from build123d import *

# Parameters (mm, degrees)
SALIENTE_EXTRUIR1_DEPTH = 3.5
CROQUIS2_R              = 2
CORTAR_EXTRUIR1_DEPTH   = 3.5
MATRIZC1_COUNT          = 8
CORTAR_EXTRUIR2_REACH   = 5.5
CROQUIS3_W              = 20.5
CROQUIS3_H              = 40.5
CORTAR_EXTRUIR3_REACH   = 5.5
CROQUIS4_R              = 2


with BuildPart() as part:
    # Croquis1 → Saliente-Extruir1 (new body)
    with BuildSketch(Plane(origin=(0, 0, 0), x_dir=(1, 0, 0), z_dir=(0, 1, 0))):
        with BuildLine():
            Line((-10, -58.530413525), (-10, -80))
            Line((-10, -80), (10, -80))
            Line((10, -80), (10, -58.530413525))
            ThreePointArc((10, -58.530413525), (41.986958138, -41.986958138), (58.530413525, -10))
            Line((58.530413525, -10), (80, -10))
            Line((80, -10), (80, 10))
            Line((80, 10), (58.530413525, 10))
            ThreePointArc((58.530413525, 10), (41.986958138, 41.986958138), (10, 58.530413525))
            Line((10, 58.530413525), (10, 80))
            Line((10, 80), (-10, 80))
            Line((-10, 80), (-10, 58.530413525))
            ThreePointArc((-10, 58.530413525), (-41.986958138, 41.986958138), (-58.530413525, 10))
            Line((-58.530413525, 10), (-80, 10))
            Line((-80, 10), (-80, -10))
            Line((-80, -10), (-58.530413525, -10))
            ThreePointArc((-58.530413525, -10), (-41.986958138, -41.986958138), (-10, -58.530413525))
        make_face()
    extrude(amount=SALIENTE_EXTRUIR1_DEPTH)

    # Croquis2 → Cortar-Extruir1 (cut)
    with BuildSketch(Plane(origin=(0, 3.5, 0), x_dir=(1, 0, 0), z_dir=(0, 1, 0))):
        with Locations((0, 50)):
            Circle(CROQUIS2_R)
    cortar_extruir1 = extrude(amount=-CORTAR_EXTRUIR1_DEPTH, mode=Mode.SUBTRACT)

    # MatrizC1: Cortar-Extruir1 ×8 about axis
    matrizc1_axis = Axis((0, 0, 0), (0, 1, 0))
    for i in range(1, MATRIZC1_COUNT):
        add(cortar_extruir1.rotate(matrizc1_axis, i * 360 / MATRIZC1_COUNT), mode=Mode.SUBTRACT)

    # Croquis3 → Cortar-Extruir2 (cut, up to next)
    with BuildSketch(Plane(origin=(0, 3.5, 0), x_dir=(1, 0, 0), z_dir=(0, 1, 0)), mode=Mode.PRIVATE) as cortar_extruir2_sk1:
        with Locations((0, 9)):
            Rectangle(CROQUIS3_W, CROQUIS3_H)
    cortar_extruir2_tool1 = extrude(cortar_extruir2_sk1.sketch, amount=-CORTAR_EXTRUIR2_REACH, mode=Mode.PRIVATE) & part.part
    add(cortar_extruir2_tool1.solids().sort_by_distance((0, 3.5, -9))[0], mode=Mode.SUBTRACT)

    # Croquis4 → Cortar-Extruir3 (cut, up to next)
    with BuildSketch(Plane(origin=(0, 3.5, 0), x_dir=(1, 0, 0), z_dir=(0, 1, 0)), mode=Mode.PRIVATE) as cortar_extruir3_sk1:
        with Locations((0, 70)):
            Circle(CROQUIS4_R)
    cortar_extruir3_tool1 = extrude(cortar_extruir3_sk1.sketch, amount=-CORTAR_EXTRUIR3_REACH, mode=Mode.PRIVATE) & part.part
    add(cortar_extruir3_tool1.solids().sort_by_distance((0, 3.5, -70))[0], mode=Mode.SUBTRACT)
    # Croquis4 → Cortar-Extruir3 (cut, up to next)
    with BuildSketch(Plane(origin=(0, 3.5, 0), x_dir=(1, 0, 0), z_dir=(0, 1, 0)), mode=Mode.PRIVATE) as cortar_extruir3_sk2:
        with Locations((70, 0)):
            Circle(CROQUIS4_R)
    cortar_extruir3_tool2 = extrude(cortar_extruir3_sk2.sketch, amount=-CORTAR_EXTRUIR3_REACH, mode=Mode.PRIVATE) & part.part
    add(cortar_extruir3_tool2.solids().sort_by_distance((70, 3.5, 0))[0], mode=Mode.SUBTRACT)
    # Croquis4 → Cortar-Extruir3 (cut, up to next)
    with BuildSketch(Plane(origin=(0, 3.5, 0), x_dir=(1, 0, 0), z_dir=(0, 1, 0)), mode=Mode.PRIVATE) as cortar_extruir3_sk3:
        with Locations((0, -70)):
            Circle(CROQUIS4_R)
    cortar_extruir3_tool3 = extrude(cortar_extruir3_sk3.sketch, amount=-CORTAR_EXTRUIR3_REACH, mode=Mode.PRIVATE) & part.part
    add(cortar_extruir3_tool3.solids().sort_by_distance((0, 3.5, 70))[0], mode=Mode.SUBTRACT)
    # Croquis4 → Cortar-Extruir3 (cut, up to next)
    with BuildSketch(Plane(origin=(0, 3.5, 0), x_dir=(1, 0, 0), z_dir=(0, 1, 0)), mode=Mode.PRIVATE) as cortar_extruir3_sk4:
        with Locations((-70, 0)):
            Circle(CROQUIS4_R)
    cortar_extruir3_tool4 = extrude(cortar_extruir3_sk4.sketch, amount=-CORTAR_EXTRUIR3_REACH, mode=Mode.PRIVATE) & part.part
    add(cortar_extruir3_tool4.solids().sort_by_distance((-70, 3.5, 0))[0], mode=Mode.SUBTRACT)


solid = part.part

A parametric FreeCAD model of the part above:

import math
import FreeCAD as App
import Part
import Sketcher
from FreeCAD import Vector
Q = App.Units.Quantity

doc = App.newDocument("Part")
body = doc.addObject("PartDesign::Body", "Body")

sketch1 = body.newObject("Sketcher::SketchObject", "Sketch")
sketch1.AttachmentSupport = (doc.getObject("XZ_Plane"), [""])
sketch1.MapMode = "FlatFace"
sketch1.addGeometry(Part.LineSegment(Vector(-10, 58.530414, 0), Vector(-10, 80, 0)), False)
sketch1.addGeometry(Part.LineSegment(Vector(-10, 80, 0), Vector(10, 80, 0)), False)
sketch1.addGeometry(Part.LineSegment(Vector(10, 80, 0), Vector(10, 58.530414, 0)), False)
sketch1.addGeometry(Part.ArcOfCircle(Part.Circle(Vector(0, 0, 0), Vector(0, 0, 1), 59.378526), math.radians(9.695447), math.radians(80.304553)), False)
sketch1.addGeometry(Part.LineSegment(Vector(58.530414, 10, 0), Vector(80, 10, 0)), False)
sketch1.addGeometry(Part.LineSegment(Vector(80, 10, 0), Vector(80, -10, 0)), False)
sketch1.addGeometry(Part.LineSegment(Vector(80, -10, 0), Vector(58.530414, -10, 0)), False)
sketch1.addGeometry(Part.ArcOfCircle(Part.Circle(Vector(0, 0, 0), Vector(0, 0, 1), 59.378526), math.radians(-80.304553), math.radians(-9.695447)), False)
sketch1.addGeometry(Part.LineSegment(Vector(10, -58.530414, 0), Vector(10, -80, 0)), False)
sketch1.addGeometry(Part.LineSegment(Vector(10, -80, 0), Vector(-10, -80, 0)), False)
sketch1.addGeometry(Part.LineSegment(Vector(-10, -80, 0), Vector(-10, -58.530414, 0)), False)
sketch1.addGeometry(Part.ArcOfCircle(Part.Circle(Vector(0, 0, 0), Vector(0, 0, 1), 59.378526), math.radians(-170.304553), math.radians(-99.695447)), False)
sketch1.addGeometry(Part.LineSegment(Vector(-58.530414, -10, 0), Vector(-80, -10, 0)), False)
sketch1.addGeometry(Part.LineSegment(Vector(-80, -10, 0), Vector(-80, 10, 0)), False)
sketch1.addGeometry(Part.LineSegment(Vector(-80, 10, 0), Vector(-58.530414, 10, 0)), False)
sketch1.addGeometry(Part.ArcOfCircle(Part.Circle(Vector(0, 0, 0), Vector(0, 0, 1), 59.378526), math.radians(99.695447), math.radians(170.304553)), False)
sketch1.addConstraint(Sketcher.Constraint("Coincident", 0, 2, 1, 1))
sketch1.addConstraint(Sketcher.Constraint("Coincident", 1, 2, 2, 1))
sketch1.addConstraint(Sketcher.Constraint("Coincident", 2, 2, 3, 2))
sketch1.addConstraint(Sketcher.Constraint("Coincident", 3, 1, 4, 1))
sketch1.addConstraint(Sketcher.Constraint("Coincident", 4, 2, 5, 1))
sketch1.addConstraint(Sketcher.Constraint("Coincident", 5, 2, 6, 1))
sketch1.addConstraint(Sketcher.Constraint("Coincident", 6, 2, 7, 2))
sketch1.addConstraint(Sketcher.Constraint("Coincident", 7, 1, 8, 1))
sketch1.addConstraint(Sketcher.Constraint("Coincident", 8, 2, 9, 1))
sketch1.addConstraint(Sketcher.Constraint("Coincident", 9, 2, 10, 1))
sketch1.addConstraint(Sketcher.Constraint("Coincident", 10, 2, 11, 2))
sketch1.addConstraint(Sketcher.Constraint("Coincident", 11, 1, 12, 1))
sketch1.addConstraint(Sketcher.Constraint("Coincident", 12, 2, 13, 1))
sketch1.addConstraint(Sketcher.Constraint("Coincident", 13, 2, 14, 1))
sketch1.addConstraint(Sketcher.Constraint("Coincident", 14, 2, 15, 2))
sketch1.addConstraint(Sketcher.Constraint("Coincident", 15, 1, 0, 1))
sketch1.addConstraint(Sketcher.Constraint("Vertical", 0))
sketch1.addConstraint(Sketcher.Constraint("Horizontal", 1))
sketch1.addConstraint(Sketcher.Constraint("Vertical", 2))
sketch1.addConstraint(Sketcher.Constraint("Horizontal", 4))
sketch1.addConstraint(Sketcher.Constraint("Vertical", 5))
sketch1.addConstraint(Sketcher.Constraint("Horizontal", 6))
sketch1.addConstraint(Sketcher.Constraint("Vertical", 8))
sketch1.addConstraint(Sketcher.Constraint("Horizontal", 9))
sketch1.addConstraint(Sketcher.Constraint("Vertical", 10))
sketch1.addConstraint(Sketcher.Constraint("Horizontal", 12))
sketch1.addConstraint(Sketcher.Constraint("Vertical", 13))
sketch1.addConstraint(Sketcher.Constraint("Horizontal", 14))
sketch1.addConstraint(Sketcher.Constraint("Coincident", 3, 3, -1, 1))
sketch1.addConstraint(Sketcher.Constraint("Coincident", 7, 3, -1, 1))
sketch1.addConstraint(Sketcher.Constraint("Coincident", 11, 3, -1, 1))
sketch1.addConstraint(Sketcher.Constraint("Coincident", 15, 3, -1, 1))
sketch1.addConstraint(Sketcher.Constraint("Equal", 3, 7))
sketch1.addConstraint(Sketcher.Constraint("Equal", 7, 11))
sketch1.addConstraint(Sketcher.Constraint("Equal", 11, 15))
sketch1.addConstraint(Sketcher.Constraint("Symmetric", 0, 2, 8, 2, -1, 1))
sketch1.addConstraint(Sketcher.Constraint("Symmetric", 4, 2, 12, 2, -1, 1))
sketch1.addConstraint(Sketcher.Constraint("Horizontal", 7, 1, 10, 2))
sketch1.addConstraint(Sketcher.Constraint("Horizontal", 6, 2, 11, 1))
sketch1.addConstraint(Sketcher.Constraint("Horizontal", 4, 2, 13, 2))
sketch1.addConstraint(Sketcher.Constraint("Horizontal", 2, 2, 15, 1))
sketch1.addConstraint(Sketcher.Constraint("Equal", 14, 0))
sketch1.addConstraint(Sketcher.Constraint("Equal", 9, 5))
sketch1.addConstraint(Sketcher.Constraint("DistanceX", 1, 1, 1, 2, Q("20 mm")))
sketch1.addConstraint(Sketcher.Constraint("DistanceY", -1, 1, 0, 2, Q("80 mm")))
sketch1.addConstraint(Sketcher.Constraint("Radius", 3, Q("59.378526 mm")))
pad1 = body.newObject("PartDesign::Pad", "Pad")
pad1.Profile = sketch1
pad1.Length = 3.5
pad1.Reversed = True

sketch2 = body.newObject("Sketcher::SketchObject", "Sketch001")
sketch2.AttachmentSupport = (doc.getObject("XZ_Plane"), [""])
sketch2.MapMode = "FlatFace"
sketch2.AttachmentOffset = App.Placement(Vector(0, 0, -3.5), App.Rotation())
sketch2.addGeometry(Part.Circle(Vector(0, -50, 0), Vector(0, 0, 1), 2), False)
sketch2.addConstraint(Sketcher.Constraint("PointOnObject", 0, 3, -2))
sketch2.addConstraint(Sketcher.Constraint("Diameter", 0, Q("4 mm")))
sketch2.addConstraint(Sketcher.Constraint("DistanceY", 0, 3, -1, 1, Q("50 mm")))
pocket1 = body.newObject("PartDesign::Pocket", "Pocket")
pocket1.Profile = sketch2
pocket1.Length = 3.5
pocket1.Reversed = True
doc.recompute()

polarpattern = body.newObject("PartDesign::PolarPattern", "PolarPattern")
polarpattern.Originals = [pocket1]
polarpattern.Axis = (doc.getObject("Y_Axis"), [""])
polarpattern.Angle = 360
polarpattern.Occurrences = 8
body.Tip = polarpattern

sketch3 = body.newObject("Sketcher::SketchObject", "Sketch002")
sketch3.AttachmentSupport = (doc.getObject("XZ_Plane"), [""])
sketch3.MapMode = "FlatFace"
sketch3.AttachmentOffset = App.Placement(Vector(0, 0, -3.5), App.Rotation())
sketch3.addGeometry(Part.LineSegment(Vector(-10.25, -29.25, 0), Vector(-10.25, 11.25, 0)), False)
sketch3.addGeometry(Part.LineSegment(Vector(-10.25, 11.25, 0), Vector(10.25, 11.25, 0)), False)
sketch3.addGeometry(Part.LineSegment(Vector(10.25, 11.25, 0), Vector(10.25, -29.25, 0)), False)
sketch3.addGeometry(Part.LineSegment(Vector(10.25, -29.25, 0), Vector(-10.25, -29.25, 0)), False)
sketch3.addConstraint(Sketcher.Constraint("Coincident", 0, 2, 1, 1))
sketch3.addConstraint(Sketcher.Constraint("Coincident", 1, 2, 2, 1))
sketch3.addConstraint(Sketcher.Constraint("Coincident", 2, 2, 3, 1))
sketch3.addConstraint(Sketcher.Constraint("Coincident", 3, 2, 0, 1))
sketch3.addConstraint(Sketcher.Constraint("Vertical", 0))
sketch3.addConstraint(Sketcher.Constraint("Horizontal", 1))
sketch3.addConstraint(Sketcher.Constraint("Vertical", 2))
sketch3.addConstraint(Sketcher.Constraint("Horizontal", 3))
sketch3.addConstraint(Sketcher.Constraint("DistanceX", 1, 1, 1, 2, Q("20.5 mm")))
sketch3.addConstraint(Sketcher.Constraint("DistanceY", 0, 1, 0, 2, Q("40.5 mm")))
sketch3.addConstraint(Sketcher.Constraint("DistanceX", 0, 2, -1, 1, Q("10.25 mm")))
sketch3.addConstraint(Sketcher.Constraint("DistanceY", -1, 1, 0, 2, Q("11.25 mm")))
pocket2 = body.newObject("PartDesign::Pocket", "Pocket001")
pocket2.Profile = sketch3
pocket2.Type = "UpToFirst"
pocket2.Reversed = True

sketch4 = body.newObject("Sketcher::SketchObject", "Sketch003")
sketch4.AttachmentSupport = (doc.getObject("XZ_Plane"), [""])
sketch4.MapMode = "FlatFace"
sketch4.AttachmentOffset = App.Placement(Vector(0, 0, -3.5), App.Rotation())
sketch4.addGeometry(Part.Circle(Vector(0, -70, 0), Vector(0, 0, 1), 2), False)
sketch4.addConstraint(Sketcher.Constraint("PointOnObject", 0, 3, -2))
sketch4.addConstraint(Sketcher.Constraint("Diameter", 0, Q("4 mm")))
sketch4.addConstraint(Sketcher.Constraint("DistanceY", 0, 3, -1, 1, Q("70 mm")))
pocket3 = body.newObject("PartDesign::Pocket", "Pocket002")
pocket3.Profile = sketch4
pocket3.Type = "UpToFirst"
pocket3.Reversed = True

sketch5 = body.newObject("Sketcher::SketchObject", "Sketch004")
sketch5.AttachmentSupport = (doc.getObject("XZ_Plane"), [""])
sketch5.MapMode = "FlatFace"
sketch5.AttachmentOffset = App.Placement(Vector(0, 0, -3.5), App.Rotation())
sketch5.addGeometry(Part.Circle(Vector(70, 0, 0), Vector(0, 0, 1), 2), False)
sketch5.addConstraint(Sketcher.Constraint("PointOnObject", 0, 3, -1))
sketch5.addConstraint(Sketcher.Constraint("Diameter", 0, Q("4 mm")))
sketch5.addConstraint(Sketcher.Constraint("DistanceX", -1, 1, 0, 3, Q("70 mm")))
pocket4 = body.newObject("PartDesign::Pocket", "Pocket003")
pocket4.Profile = sketch5
pocket4.Type = "UpToFirst"
pocket4.Reversed = True

sketch6 = body.newObject("Sketcher::SketchObject", "Sketch005")
sketch6.AttachmentSupport = (doc.getObject("XZ_Plane"), [""])
sketch6.MapMode = "FlatFace"
sketch6.AttachmentOffset = App.Placement(Vector(0, 0, -3.5), App.Rotation())
sketch6.addGeometry(Part.Circle(Vector(0, 70, 0), Vector(0, 0, 1), 2), False)
sketch6.addConstraint(Sketcher.Constraint("PointOnObject", 0, 3, -2))
sketch6.addConstraint(Sketcher.Constraint("Diameter", 0, Q("4 mm")))
sketch6.addConstraint(Sketcher.Constraint("DistanceY", -1, 1, 0, 3, Q("70 mm")))
pocket5 = body.newObject("PartDesign::Pocket", "Pocket004")
pocket5.Profile = sketch6
pocket5.Type = "UpToFirst"
pocket5.Reversed = True

sketch7 = body.newObject("Sketcher::SketchObject", "Sketch006")
sketch7.AttachmentSupport = (doc.getObject("XZ_Plane"), [""])
sketch7.MapMode = "FlatFace"
sketch7.AttachmentOffset = App.Placement(Vector(0, 0, -3.5), App.Rotation())
sketch7.addGeometry(Part.Circle(Vector(-70, 0, 0), Vector(0, 0, 1), 2), False)
sketch7.addConstraint(Sketcher.Constraint("PointOnObject", 0, 3, -1))
sketch7.addConstraint(Sketcher.Constraint("Diameter", 0, Q("4 mm")))
sketch7.addConstraint(Sketcher.Constraint("DistanceX", 0, 3, -1, 1, Q("70 mm")))
pocket6 = body.newObject("PartDesign::Pocket", "Pocket005")
pocket6.Profile = sketch7
pocket6.Type = "UpToFirst"
pocket6.Reversed = True

doc.recompute()
